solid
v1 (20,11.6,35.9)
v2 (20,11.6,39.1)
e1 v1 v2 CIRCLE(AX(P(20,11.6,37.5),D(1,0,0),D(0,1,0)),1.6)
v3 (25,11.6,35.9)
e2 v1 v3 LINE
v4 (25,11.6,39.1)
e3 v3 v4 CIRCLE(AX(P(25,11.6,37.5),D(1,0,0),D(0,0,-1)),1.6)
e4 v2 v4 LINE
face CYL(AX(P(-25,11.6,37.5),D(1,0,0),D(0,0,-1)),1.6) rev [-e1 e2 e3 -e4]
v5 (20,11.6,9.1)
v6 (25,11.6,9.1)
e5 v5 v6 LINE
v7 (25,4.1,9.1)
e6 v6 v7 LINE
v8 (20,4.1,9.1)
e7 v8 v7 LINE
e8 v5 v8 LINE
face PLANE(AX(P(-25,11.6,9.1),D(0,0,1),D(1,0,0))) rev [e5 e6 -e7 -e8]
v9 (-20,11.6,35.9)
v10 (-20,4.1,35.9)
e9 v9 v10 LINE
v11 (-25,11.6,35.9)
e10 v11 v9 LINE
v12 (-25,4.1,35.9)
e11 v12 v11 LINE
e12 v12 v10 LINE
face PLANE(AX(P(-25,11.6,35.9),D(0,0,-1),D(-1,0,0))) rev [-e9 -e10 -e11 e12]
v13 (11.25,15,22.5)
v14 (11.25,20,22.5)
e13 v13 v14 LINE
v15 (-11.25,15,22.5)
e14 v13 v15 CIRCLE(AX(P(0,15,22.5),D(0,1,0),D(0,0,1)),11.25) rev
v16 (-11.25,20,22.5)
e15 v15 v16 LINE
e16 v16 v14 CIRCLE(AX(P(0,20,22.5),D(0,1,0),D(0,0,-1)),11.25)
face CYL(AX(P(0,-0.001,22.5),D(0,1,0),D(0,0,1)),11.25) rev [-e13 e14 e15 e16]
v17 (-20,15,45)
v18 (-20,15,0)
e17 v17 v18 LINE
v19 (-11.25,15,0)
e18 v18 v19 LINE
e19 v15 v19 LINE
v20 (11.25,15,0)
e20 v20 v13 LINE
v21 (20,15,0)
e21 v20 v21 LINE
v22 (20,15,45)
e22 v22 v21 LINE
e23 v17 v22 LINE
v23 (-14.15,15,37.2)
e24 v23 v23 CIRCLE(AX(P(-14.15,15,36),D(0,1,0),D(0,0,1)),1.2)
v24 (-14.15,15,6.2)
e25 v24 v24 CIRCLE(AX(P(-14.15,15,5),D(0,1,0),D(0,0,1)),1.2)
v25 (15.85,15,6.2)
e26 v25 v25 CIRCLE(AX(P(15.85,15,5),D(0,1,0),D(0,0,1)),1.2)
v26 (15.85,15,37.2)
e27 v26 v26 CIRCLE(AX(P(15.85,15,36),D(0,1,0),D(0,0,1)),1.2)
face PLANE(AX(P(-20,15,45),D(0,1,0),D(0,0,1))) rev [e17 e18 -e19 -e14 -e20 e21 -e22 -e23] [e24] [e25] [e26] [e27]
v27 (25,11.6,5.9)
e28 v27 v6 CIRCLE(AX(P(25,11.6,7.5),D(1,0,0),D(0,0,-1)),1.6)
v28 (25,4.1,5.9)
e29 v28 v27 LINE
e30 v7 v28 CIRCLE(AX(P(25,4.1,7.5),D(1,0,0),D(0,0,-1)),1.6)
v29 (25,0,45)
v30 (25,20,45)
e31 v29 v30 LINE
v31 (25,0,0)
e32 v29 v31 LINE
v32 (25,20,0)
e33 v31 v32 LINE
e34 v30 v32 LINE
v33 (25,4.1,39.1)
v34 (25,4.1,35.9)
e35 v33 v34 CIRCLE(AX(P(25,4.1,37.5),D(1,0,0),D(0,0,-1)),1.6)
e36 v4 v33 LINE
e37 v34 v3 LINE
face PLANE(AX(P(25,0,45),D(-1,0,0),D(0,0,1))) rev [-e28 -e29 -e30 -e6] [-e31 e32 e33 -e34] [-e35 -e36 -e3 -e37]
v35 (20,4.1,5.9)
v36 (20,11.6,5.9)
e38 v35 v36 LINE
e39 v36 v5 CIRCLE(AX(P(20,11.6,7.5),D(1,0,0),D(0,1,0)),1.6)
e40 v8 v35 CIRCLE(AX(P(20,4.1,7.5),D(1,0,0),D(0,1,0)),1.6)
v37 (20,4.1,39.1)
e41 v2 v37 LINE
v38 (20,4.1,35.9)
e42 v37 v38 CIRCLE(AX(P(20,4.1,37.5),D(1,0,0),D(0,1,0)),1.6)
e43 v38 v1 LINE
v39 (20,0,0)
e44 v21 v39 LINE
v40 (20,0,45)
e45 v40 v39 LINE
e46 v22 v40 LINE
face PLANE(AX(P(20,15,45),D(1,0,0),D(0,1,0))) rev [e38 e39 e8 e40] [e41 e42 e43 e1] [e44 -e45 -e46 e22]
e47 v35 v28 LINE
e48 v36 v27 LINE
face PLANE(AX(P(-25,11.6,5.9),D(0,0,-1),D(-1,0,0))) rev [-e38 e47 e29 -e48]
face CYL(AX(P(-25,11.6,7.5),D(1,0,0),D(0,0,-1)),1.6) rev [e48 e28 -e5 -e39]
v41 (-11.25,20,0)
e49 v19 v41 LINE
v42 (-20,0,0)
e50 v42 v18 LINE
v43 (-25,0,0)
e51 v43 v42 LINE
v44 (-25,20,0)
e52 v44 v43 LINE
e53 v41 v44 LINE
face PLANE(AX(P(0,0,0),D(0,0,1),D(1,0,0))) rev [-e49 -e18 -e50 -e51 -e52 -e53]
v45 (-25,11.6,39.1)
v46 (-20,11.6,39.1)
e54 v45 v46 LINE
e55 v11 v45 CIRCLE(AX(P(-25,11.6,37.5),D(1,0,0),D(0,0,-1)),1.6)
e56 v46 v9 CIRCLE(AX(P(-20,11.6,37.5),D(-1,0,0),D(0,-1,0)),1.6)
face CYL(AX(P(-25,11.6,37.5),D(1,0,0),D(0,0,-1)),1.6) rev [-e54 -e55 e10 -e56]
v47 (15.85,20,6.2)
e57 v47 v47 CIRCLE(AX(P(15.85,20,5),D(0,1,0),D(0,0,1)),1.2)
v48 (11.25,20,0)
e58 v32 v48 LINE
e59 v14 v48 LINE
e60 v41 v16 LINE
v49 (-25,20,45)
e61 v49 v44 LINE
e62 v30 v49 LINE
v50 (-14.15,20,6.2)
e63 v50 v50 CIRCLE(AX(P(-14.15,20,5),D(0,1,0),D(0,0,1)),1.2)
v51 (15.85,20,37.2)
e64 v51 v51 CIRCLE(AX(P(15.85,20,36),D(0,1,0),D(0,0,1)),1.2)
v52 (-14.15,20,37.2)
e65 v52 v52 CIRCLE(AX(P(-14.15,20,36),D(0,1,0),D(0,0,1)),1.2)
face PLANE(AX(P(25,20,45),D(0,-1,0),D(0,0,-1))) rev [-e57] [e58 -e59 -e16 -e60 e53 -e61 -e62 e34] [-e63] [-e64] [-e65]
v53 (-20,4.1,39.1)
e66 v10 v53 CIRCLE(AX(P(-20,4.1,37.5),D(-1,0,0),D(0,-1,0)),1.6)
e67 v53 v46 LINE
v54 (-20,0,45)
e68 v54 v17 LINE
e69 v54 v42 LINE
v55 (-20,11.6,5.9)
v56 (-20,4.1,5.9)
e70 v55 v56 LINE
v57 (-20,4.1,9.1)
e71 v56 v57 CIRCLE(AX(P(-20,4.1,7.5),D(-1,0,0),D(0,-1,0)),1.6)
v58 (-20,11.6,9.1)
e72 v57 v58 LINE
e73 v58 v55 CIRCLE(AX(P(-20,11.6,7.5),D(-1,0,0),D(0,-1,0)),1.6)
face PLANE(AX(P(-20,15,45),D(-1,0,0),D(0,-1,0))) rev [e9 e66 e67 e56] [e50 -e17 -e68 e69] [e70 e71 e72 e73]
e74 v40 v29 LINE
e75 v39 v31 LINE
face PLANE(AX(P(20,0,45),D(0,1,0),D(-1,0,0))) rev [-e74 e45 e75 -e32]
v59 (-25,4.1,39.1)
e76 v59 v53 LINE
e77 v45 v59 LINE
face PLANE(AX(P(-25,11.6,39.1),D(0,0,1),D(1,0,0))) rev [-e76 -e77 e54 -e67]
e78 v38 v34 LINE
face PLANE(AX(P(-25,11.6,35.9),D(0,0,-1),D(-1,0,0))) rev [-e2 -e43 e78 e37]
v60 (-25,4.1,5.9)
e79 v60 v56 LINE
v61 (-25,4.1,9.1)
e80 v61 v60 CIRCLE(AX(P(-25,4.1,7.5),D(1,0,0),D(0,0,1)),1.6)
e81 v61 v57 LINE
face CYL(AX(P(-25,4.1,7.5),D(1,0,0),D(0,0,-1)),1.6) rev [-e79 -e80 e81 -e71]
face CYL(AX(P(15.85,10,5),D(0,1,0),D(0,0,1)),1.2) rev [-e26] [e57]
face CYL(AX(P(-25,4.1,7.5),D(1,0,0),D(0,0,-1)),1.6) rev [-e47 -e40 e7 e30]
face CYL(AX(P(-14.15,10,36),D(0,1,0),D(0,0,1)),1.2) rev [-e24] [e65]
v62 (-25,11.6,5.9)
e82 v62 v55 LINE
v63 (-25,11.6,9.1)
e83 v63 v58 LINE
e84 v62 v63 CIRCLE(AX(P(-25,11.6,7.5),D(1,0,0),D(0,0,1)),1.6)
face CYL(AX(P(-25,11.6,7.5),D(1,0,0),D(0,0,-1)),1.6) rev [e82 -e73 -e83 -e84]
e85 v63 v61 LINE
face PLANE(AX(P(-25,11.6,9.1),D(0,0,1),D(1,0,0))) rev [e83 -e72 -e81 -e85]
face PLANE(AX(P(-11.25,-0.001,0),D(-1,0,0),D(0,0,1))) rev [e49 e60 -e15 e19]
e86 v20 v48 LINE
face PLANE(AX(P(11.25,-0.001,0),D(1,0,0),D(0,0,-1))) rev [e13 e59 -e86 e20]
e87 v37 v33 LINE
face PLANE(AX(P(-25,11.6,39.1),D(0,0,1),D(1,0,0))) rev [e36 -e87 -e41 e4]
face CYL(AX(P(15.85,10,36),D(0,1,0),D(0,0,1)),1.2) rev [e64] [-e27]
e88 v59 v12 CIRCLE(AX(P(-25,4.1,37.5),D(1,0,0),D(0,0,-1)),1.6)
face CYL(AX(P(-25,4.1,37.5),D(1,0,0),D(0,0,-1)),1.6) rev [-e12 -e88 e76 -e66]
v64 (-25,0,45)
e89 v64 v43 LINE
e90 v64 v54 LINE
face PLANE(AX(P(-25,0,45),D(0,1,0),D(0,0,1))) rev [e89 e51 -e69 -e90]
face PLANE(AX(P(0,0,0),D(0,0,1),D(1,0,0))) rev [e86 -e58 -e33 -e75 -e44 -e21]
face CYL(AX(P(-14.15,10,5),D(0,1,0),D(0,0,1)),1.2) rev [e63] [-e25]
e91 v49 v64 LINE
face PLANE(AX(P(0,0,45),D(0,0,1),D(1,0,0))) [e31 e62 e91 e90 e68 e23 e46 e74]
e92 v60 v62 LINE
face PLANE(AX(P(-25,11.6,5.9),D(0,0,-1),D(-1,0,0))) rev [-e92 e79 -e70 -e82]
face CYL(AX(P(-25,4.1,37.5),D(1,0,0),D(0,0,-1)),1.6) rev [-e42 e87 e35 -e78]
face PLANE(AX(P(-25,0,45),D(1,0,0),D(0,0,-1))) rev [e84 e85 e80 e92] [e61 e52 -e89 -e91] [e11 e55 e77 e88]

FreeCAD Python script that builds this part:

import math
import FreeCAD as App
import Part
import Sketcher
Q = App.Units.Quantity

doc = App.newDocument("Part")
body = doc.addObject("PartDesign::Body", "Body")

sketch1 = doc.addObject("Sketcher::SketchObject", "Sketch")
body.addObject(sketch1)
sketch1.AttachmentSupport = (doc.XY_Plane, [""])
sketch1.MapMode = "FlatFace"
sketch1.addGeometry(Part.LineSegment(App.Vector(-25, 0, 0), App.Vector(-20, 0, 0)), False)
sketch1.addGeometry(Part.LineSegment(App.Vector(-20, 0, 0), App.Vector(-20, 15, 0)), False)
sketch1.addGeometry(Part.LineSegment(App.Vector(-20, 15, 0), App.Vector(20, 15, 0)), False)
sketch1.addGeometry(Part.LineSegment(App.Vector(20, 15, 0), App.Vector(20, 0, 0)), False)
sketch1.addGeometry(Part.LineSegment(App.Vector(20, 0, 0), App.Vector(25, 0, 0)), False)
sketch1.addGeometry(Part.LineSegment(App.Vector(25, 0, 0), App.Vector(25, 20, 0)), False)
sketch1.addGeometry(Part.LineSegment(App.Vector(25, 20, 0), App.Vector(-25, 20, 0)), False)
sketch1.addGeometry(Part.LineSegment(App.Vector(-25, 20, 0), App.Vector(-25, 0, 0)), False)
sketch1.addConstraint(Sketcher.Constraint("Coincident", 0, 2, 1, 1))
sketch1.addConstraint(Sketcher.Constraint("Coincident", 1, 2, 2, 1))
sketch1.addConstraint(Sketcher.Constraint("Coincident", 2, 2, 3, 1))
sketch1.addConstraint(Sketcher.Constraint("Coincident", 3, 2, 4, 1))
sketch1.addConstraint(Sketcher.Constraint("Coincident", 4, 2, 5, 1))
sketch1.addConstraint(Sketcher.Constraint("Coincident", 5, 2, 6, 1))
sketch1.addConstraint(Sketcher.Constraint("Coincident", 6, 2, 7, 1))
sketch1.addConstraint(Sketcher.Constraint("Coincident", 7, 2, 0, 1))
sketch1.addConstraint(Sketcher.Constraint("Horizontal", 0))
sketch1.addConstraint(Sketcher.Constraint("Vertical", 1))
sketch1.addConstraint(Sketcher.Constraint("Horizontal", 2))
sketch1.addConstraint(Sketcher.Constraint("Vertical", 3))
sketch1.addConstraint(Sketcher.Constraint("Horizontal", 4))
sketch1.addConstraint(Sketcher.Constraint("Vertical", 5))
sketch1.addConstraint(Sketcher.Constraint("Horizontal", 6))
sketch1.addConstraint(Sketcher.Constraint("Vertical", 7))
sketch1.addConstraint(Sketcher.Constraint("Symmetric", 0, 2, 3, 2, -1, 1))
sketch1.addConstraint(Sketcher.Constraint("Symmetric", 4, 2, 7, 2, -2))
sketch1.addConstraint(Sketcher.Constraint("DistanceX", 0, 1, 0, 2, Q("5 mm")))
sketch1.addConstraint(Sketcher.Constraint("DistanceX", 2, 1, 2, 2, Q("40 mm")))
sketch1.addConstraint(Sketcher.Constraint("DistanceY", 1, 1, 1, 2, Q("15 mm")))
sketch1.addConstraint(Sketcher.Constraint("DistanceY", 5, 1, 5, 2, Q("20 mm")))
pad1 = doc.addObject("PartDesign::Pad", "Pad")
body.addObject(pad1)
pad1.Profile = sketch1
pad1.Length = 45

sketch2 = doc.addObject("Sketcher::SketchObject", "Sketch001")
body.addObject(sketch2)
sketch2.AttachmentSupport = (doc.XZ_Plane, [""])
sketch2.MapMode = "FlatFace"
sketch2.AttachmentOffset = App.Placement(App.Vector(0, 0, -20), App.Rotation())
sketch2.addGeometry(Part.LineSegment(App.Vector(11.25, 22.5, 0), App.Vector(11.25, 0, 0)), False)
sketch2.addGeometry(Part.LineSegment(App.Vector(11.25, 0, 0), App.Vector(-11.25, 0, 0)), False)
sketch2.addGeometry(Part.LineSegment(App.Vector(-11.25, 0, 0), App.Vector(-11.25, 22.5, 0)), False)
sketch2.addGeometry(Part.ArcOfCircle(Part.Circle(App.Vector(0, 22.5, 0), App.Vector(0, 0, 1), 11.25), math.radians(0), math.radians(180)), False)
sketch2.addConstraint(Sketcher.Constraint("Coincident", 0, 2, 1, 1))
sketch2.addConstraint(Sketcher.Constraint("Coincident", 1, 2, 2, 1))
sketch2.addConstraint(Sketcher.Constraint("Tangent", 2, 2, 3, 2))
sketch2.addConstraint(Sketcher.Constraint("Tangent", 3, 1, 0, 1))
sketch2.addConstraint(Sketcher.Constraint("Vertical", 0))
sketch2.addConstraint(Sketcher.Constraint("Horizontal", 1))
sketch2.addConstraint(Sketcher.Constraint("Vertical", 2))
sketch2.addConstraint(Sketcher.Constraint("Symmetric", 0, 2, 1, 2, -1, 1))
sketch2.addConstraint(Sketcher.Constraint("Equal", 1, 0))
sketch2.addConstraint(Sketcher.Constraint("Radius", 3, Q("11.25 mm")))
pocket1 = doc.addObject("PartDesign::Pocket", "Pocket")
body.addObject(pocket1)
pocket1.Profile = sketch2
pocket1.Type = "UpToFirst"
pocket1.Reversed = True

sketch3 = doc.addObject("Sketcher::SketchObject", "Sketch002")
body.addObject(sketch3)
sketch3.AttachmentSupport = (doc.XZ_Plane, [""])
sketch3.MapMode = "FlatFace"
sketch3.AttachmentOffset = App.Placement(App.Vector(0, 0, -20), App.Rotation())
sketch3.addGeometry(Part.Circle(App.Vector(15.85, 36, 0), App.Vector(0, 0, 1), 1.2), False)
sketch3.addGeometry(Part.Circle(App.Vector(-14.15, 36, 0), App.Vector(0, 0, 1), 1.2), False)
sketch3.addGeometry(Part.Circle(App.Vector(-14.15, 5, 0), App.Vector(0, 0, 1), 1.2), False)
sketch3.addGeometry(Part.Circle(App.Vector(15.85, 5, 0), App.Vector(0, 0, 1), 1.2), False)
sketch3.addConstraint(Sketcher.Constraint("Equal", 0, 1))
sketch3.addConstraint(Sketcher.Constraint("Equal", 1, 2))
sketch3.addConstraint(Sketcher.Constraint("Equal", 2, 3))
sketch3.addConstraint(Sketcher.Constraint("Horizontal", 0, 3, 1, 3))
sketch3.addConstraint(Sketcher.Constraint("Horizontal", 2, 3, 3, 3))
sketch3.addConstraint(Sketcher.Constraint("Vertical", 1, 3, 2, 3))
sketch3.addConstraint(Sketcher.Constraint("Vertical", 0, 3, 3, 3))
sketch3.addConstraint(Sketcher.Constraint("Diameter", 0, Q("2.4 mm")))
sketch3.addConstraint(Sketcher.Constraint("DistanceY", -1, 1, 0, 3, Q("36 mm")))
sketch3.addConstraint(Sketcher.Constraint("DistanceY", -1, 1, 2, 3, Q("5 mm")))
sketch3.addConstraint(Sketcher.Constraint("DistanceX", 1, 3, 0, 3, Q("30 mm")))
sketch3.addConstraint(Sketcher.Constraint("DistanceX", -1, 1, 0, 3, Q("15.85 mm")))
pocket2 = doc.addObject("PartDesign::Pocket", "Pocket001")
body.addObject(pocket2)
pocket2.Profile = sketch3
pocket2.Length = 10
pocket2.Reversed = True

sketch4 = doc.addObject("Sketcher::SketchObject", "Sketch003")
body.addObject(sketch4)
sketch4.AttachmentSupport = (doc.YZ_Plane, [""])
sketch4.MapMode = "FlatFace"
sketch4.AttachmentOffset = App.Placement(App.Vector(0, 0, 25), App.Rotation())
sketch4.addGeometry(Part.LineSegment(App.Vector(4.1, 35.9, 0), App.Vector(11.6, 35.9, 0)), False)
sketch4.addGeometry(Part.ArcOfCircle(Part.Circle(App.Vector(11.6, 37.5, 0), App.Vector(0, 0, 1), 1.6), math.radians(-90), math.radians(90)), False)
sketch4.addGeometry(Part.LineSegment(App.Vector(11.6, 39.1, 0), App.Vector(4.1, 39.1, 0)), False)
sketch4.addGeometry(Part.ArcOfCircle(Part.Circle(App.Vector(4.1, 37.5, 0), App.Vector(0, 0, 1), 1.6), math.radians(90), math.radians(270)), False)
sketch4.addGeometry(Part.LineSegment(App.Vector(11.6, 9.1, 0), App.Vector(4.1, 9.1, 0)), False)
sketch4.addGeometry(Part.ArcOfCircle(Part.Circle(App.Vector(4.1, 7.5, 0), App.Vector(0, 0, 1), 1.6), math.radians(90), math.radians(270)), False)
sketch4.addGeometry(Part.LineSegment(App.Vector(4.1, 5.9, 0), App.Vector(11.6, 5.9, 0)), False)
sketch4.addGeometry(Part.ArcOfCircle(Part.Circle(App.Vector(11.6, 7.5, 0), App.Vector(0, 0, 1), 1.6), math.radians(-90), math.radians(90)), False)
sketch4.addConstraint(Sketcher.Constraint("Tangent", 0, 2, 1, 1))
sketch4.addConstraint(Sketcher.Constraint("Tangent", 1, 2, 2, 1))
sketch4.addConstraint(Sketcher.Constraint("Tangent", 2, 2, 3, 1))
sketch4.addConstraint(Sketcher.Constraint("Tangent", 3, 2, 0, 1))
sketch4.addConstraint(Sketcher.Constraint("Tangent", 4, 2, 5, 1))
sketch4.addConstraint(Sketcher.Constraint("Tangent", 5, 2, 6, 1))
sketch4.addConstraint(Sketcher.Constraint("Tangent", 6, 2, 7, 1))
sketch4.addConstraint(Sketcher.Constraint("Tangent", 7, 2, 4, 1))
sketch4.addConstraint(Sketcher.Constraint("Horizontal", 0))
sketch4.addConstraint(Sketcher.Constraint("Horizontal", 2))
sketch4.addConstraint(Sketcher.Constraint("Horizontal", 4))
sketch4.addConstraint(Sketcher.Constraint("Horizontal", 6))
sketch4.addConstraint(Sketcher.Constraint("Equal", 3, 5))
sketch4.addConstraint(Sketcher.Constraint("Vertical", 3, 3, 5, 3))
sketch4.addConstraint(Sketcher.Constraint("Vertical", 1, 3, 7, 3))
sketch4.addConstraint(Sketcher.Constraint("Radius", 1, Q("1.6 mm")))
sketch4.addConstraint(Sketcher.Constraint("DistanceX", 0, 1, 0, 2, Q("7.5 mm")))
sketch4.addConstraint(Sketcher.Constraint("DistanceY", 5, 3, 3, 3, Q("30 mm")))
sketch4.addConstraint(Sketcher.Constraint("DistanceX", -1, 1, 1, 3, Q("11.6 mm")))
sketch4.addConstraint(Sketcher.Constraint("DistanceY", -1, 1, 1, 3, Q("37.5 mm")))
pocket3 = doc.addObject("PartDesign::Pocket", "Pocket002")
body.addObject(pocket3)
pocket3.Profile = sketch4
pocket3.Type = "ThroughAll"
pocket3.Midplane = True

doc.recompute()
